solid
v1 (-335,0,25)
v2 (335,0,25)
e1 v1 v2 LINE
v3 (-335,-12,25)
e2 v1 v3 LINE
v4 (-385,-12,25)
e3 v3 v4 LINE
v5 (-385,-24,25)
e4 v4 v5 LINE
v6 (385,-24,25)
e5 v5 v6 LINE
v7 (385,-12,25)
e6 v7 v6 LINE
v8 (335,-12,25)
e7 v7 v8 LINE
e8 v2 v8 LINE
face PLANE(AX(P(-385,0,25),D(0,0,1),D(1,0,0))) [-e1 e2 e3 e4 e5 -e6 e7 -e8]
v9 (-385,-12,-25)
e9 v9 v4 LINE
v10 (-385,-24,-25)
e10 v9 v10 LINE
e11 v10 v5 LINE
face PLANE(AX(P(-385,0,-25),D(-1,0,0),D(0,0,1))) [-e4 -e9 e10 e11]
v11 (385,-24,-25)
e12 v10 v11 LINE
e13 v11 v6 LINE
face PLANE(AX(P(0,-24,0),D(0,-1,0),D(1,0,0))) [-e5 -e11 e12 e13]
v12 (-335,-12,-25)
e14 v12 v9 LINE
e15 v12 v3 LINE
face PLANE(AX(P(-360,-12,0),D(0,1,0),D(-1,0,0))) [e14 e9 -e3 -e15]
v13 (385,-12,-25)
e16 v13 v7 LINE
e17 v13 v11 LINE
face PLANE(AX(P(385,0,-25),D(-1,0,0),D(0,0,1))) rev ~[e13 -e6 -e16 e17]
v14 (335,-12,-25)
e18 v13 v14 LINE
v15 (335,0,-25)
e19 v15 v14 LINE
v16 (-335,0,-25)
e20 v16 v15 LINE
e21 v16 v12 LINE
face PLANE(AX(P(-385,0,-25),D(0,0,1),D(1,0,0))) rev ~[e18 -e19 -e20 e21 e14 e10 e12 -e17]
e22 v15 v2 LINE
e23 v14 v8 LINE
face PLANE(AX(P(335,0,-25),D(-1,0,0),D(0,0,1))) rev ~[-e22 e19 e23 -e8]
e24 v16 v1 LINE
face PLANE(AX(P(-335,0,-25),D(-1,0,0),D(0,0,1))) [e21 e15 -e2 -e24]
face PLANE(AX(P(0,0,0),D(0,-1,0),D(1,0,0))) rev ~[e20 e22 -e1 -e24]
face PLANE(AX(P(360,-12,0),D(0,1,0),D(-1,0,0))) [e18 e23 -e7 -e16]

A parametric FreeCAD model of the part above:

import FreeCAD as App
import Part
import Sketcher
Q = App.Units.Quantity


def add_polygon(sketch, points):
    """Adds a closed chain of lines whose ends are joined by coincident constraints."""
    first, n = sketch.GeometryCount, len(points)
    for a, b in zip(points, points[1:] + points[:1]):
        sketch.addGeometry(Part.LineSegment(App.Vector(*a, 0), App.Vector(*b, 0)), False)
    for i in range(n):
        sketch.addConstraint(Sketcher.Constraint("Coincident", first + i, 2, first + (i + 1) % n, 1))

doc = App.newDocument("Part")
body = doc.addObject("PartDesign::Body", "Body")

# Sketch on XZ plane
sketch1 = doc.addObject("Sketcher::SketchObject", "Sketch")
body.addObject(sketch1)
sketch1.AttachmentSupport = (doc.XZ_Plane, [""])
sketch1.MapMode = "FlatFace"
add_polygon(sketch1, [(-385, 25), (-385, -25), (385, -25), (385, 25)])  # lines 0-3
sketch1.addConstraint([
    Sketcher.Constraint("Vertical", 0),
    Sketcher.Constraint("Horizontal", 1),
    Sketcher.Constraint("Vertical", 2),
    Sketcher.Constraint("Horizontal", 3),
    Sketcher.Constraint("Symmetric", 0, 2, 2, 2, -1, 1),
    Sketcher.Constraint("DistanceX", 1, 1, 1, 2, Q("770 mm")),
    Sketcher.Constraint("DistanceY", 0, 2, 0, 1, Q("50 mm")),
])
pad1 = doc.addObject("PartDesign::Pad", "Pad")
body.addObject(pad1)
pad1.Profile = sketch1
pad1.Length = 24

# Sketch on XZ plane
sketch2 = doc.addObject("Sketcher::SketchObject", "Sketch001")
body.addObject(sketch2)
sketch2.AttachmentSupport = (doc.XZ_Plane, [""])
sketch2.MapMode = "FlatFace"
add_polygon(sketch2, [(385, 25), (385, -25), (335, -25), (335, 25)])  # lines 0-3
add_polygon(sketch2, [(-335, 25), (-335, -25), (-385, -25), (-385, 25)])  # lines 4-7
sketch2.addConstraint([
    Sketcher.Constraint("Vertical", 0),
    Sketcher.Constraint("Horizontal", 1),
    Sketcher.Constraint("Vertical", 2),
    Sketcher.Constraint("Horizontal", 3),
    Sketcher.Constraint("Vertical", 4),
    Sketcher.Constraint("Horizontal", 5),
    Sketcher.Constraint("Vertical", 6),
    Sketcher.Constraint("Horizontal", 7),
    Sketcher.Constraint("Symmetric", 2, 2, 4, 2, -1, 1),
    Sketcher.Constraint("Symmetric", 0, 2, 6, 2, -1, 1),
    Sketcher.Constraint("Horizontal", 1, 2, 4, 2),
    Sketcher.Constraint("Equal", 7, 0),
    Sketcher.Constraint("DistanceX", 1, 2, 1, 1, Q("50 mm")),
    Sketcher.Constraint("DistanceX", -1, 1, 0, 2, Q("385 mm")),
])
pocket1 = doc.addObject("PartDesign::Pocket", "Pocket")
body.addObject(pocket1)
pocket1.Profile = sketch2
pocket1.Length = 12
pocket1.Reversed = True

doc.recompute()
